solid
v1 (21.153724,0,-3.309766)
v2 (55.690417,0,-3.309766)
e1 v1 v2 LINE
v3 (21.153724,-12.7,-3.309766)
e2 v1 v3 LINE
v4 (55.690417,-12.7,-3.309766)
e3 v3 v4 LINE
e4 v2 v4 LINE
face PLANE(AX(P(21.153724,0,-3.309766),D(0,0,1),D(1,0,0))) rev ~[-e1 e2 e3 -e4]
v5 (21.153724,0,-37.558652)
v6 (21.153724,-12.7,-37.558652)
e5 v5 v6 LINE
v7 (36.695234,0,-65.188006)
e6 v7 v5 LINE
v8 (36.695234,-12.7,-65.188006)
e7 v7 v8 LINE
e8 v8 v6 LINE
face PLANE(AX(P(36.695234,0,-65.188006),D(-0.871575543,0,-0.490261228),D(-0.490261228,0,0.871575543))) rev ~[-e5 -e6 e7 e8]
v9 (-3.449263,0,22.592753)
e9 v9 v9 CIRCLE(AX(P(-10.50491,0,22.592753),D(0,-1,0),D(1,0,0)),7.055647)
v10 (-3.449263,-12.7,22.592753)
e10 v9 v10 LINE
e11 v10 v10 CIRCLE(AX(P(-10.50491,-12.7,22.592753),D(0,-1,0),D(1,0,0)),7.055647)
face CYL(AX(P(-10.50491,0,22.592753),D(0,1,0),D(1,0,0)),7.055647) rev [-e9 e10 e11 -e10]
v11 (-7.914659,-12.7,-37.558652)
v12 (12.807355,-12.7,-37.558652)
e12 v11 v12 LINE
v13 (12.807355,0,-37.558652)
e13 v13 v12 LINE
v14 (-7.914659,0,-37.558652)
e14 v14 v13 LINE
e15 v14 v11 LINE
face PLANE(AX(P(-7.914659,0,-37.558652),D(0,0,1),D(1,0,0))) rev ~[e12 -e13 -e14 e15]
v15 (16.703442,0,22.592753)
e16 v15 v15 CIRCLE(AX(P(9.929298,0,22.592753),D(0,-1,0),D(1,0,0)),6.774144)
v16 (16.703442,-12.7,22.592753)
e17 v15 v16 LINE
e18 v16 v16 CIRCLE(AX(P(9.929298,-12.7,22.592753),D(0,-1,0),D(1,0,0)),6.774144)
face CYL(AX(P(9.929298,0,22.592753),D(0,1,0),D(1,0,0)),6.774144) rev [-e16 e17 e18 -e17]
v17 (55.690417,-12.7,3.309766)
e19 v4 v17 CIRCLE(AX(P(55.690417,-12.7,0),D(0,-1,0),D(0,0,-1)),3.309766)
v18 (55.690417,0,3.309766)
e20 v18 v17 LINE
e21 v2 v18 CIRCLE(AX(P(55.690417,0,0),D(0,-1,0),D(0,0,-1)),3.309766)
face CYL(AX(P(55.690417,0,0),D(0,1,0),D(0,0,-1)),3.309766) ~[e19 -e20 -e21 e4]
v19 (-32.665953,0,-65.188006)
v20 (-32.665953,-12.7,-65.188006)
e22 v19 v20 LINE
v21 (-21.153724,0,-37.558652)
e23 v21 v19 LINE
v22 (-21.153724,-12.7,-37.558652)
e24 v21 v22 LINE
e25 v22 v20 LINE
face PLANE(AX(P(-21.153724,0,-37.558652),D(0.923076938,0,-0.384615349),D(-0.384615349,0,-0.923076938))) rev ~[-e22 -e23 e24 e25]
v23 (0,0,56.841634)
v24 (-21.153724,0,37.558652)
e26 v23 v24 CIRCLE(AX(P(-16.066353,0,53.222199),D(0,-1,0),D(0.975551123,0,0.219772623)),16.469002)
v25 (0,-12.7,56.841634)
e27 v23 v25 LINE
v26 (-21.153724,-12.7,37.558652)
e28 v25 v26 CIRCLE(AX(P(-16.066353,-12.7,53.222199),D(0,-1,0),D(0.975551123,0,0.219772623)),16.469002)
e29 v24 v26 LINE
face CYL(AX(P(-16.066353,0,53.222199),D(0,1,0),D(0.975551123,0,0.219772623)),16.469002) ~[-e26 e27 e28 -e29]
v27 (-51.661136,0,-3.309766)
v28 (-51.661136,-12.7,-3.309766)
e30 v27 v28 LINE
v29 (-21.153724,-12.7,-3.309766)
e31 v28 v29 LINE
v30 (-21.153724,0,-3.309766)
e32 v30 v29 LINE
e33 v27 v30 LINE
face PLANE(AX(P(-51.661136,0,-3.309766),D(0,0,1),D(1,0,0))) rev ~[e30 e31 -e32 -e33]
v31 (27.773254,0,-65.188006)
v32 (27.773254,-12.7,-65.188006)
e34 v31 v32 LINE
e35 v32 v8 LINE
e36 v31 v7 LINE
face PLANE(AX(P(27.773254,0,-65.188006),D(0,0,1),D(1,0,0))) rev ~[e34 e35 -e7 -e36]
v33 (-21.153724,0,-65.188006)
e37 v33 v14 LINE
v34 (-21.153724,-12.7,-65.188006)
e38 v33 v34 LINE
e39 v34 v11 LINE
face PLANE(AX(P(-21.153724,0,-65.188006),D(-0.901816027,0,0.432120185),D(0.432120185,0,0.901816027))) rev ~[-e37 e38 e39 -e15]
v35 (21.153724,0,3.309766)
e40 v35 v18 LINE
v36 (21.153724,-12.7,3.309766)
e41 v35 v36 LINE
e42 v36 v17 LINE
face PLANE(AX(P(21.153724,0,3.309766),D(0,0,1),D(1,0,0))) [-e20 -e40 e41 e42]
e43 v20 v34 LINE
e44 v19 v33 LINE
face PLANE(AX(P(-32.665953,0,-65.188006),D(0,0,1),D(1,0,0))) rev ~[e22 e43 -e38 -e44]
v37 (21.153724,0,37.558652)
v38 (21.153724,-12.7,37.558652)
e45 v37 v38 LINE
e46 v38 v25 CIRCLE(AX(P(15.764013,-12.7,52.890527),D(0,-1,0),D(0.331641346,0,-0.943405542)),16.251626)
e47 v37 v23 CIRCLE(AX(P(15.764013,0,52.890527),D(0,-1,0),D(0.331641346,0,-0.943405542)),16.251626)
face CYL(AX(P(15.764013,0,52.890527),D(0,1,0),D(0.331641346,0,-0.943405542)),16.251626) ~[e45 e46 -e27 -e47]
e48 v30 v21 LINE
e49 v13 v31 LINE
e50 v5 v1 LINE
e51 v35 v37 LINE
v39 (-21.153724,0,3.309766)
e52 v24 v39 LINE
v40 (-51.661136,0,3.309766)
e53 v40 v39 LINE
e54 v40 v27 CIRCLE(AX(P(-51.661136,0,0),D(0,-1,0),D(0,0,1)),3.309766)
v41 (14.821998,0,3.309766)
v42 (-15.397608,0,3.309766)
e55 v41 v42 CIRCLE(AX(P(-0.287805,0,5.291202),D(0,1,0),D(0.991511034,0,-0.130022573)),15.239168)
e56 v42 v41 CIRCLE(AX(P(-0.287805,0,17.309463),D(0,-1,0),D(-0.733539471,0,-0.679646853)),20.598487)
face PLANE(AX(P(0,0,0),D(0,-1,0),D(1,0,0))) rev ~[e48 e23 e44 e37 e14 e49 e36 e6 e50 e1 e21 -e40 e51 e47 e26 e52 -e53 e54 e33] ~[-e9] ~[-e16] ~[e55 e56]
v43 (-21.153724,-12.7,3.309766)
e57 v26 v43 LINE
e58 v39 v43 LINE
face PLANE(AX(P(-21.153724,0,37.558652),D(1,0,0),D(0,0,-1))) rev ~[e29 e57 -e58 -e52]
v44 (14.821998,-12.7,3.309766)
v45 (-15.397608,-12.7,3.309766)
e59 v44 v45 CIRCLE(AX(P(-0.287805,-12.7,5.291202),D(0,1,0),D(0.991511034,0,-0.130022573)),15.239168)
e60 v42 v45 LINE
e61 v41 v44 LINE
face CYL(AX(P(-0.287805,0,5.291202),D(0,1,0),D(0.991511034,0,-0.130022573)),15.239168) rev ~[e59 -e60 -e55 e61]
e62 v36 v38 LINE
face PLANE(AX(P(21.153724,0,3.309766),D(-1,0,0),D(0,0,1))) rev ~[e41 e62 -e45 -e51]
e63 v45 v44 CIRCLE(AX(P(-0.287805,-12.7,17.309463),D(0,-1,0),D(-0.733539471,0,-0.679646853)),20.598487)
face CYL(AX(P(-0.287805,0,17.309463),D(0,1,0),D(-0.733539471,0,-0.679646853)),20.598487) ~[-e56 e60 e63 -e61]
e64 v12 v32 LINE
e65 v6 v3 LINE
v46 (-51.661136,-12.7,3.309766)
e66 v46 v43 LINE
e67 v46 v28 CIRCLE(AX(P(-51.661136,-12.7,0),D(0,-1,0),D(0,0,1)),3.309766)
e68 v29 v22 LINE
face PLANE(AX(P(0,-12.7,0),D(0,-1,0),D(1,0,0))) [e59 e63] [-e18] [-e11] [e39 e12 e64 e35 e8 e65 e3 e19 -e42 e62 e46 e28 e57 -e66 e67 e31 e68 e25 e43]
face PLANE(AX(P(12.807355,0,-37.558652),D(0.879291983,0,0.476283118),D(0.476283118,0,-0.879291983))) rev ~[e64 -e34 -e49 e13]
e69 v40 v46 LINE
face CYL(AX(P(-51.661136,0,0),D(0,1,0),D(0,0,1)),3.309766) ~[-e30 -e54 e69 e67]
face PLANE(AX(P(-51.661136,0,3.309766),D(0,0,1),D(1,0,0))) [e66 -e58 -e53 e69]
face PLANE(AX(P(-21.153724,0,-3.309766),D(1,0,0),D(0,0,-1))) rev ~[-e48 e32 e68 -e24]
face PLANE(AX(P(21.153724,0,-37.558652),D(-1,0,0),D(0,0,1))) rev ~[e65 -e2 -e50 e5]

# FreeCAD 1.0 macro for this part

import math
import FreeCAD as App
import Part
import Sketcher
from FreeCAD import Vector
Q = App.Units.Quantity

doc = App.newDocument("Part")
body = doc.addObject("PartDesign::Body", "Body")

# Sketch on XZ plane
sketch1 = doc.addObject("Sketcher::SketchObject", "Sketch")
body.addObject(sketch1)
sketch1.AttachmentSupport = (doc.XZ_Plane, [""])
sketch1.MapMode = "FlatFace"
sketch1.addGeometry([
    Part.LineSegment(Vector(21.2, -37.6, 0), Vector(21.2, -3.3, 0)),  # 0
    Part.LineSegment(Vector(21.2, -3.3, 0), Vector(55.7, -3.3, 0)),  # 1
    Part.ArcOfCircle(Part.Circle(Vector(55.7, 0, 0), Vector(0, 0, 1), 3.3), math.radians(-90), math.radians(90)),  # 2
    Part.LineSegment(Vector(55.7, 3.3, 0), Vector(21.2, 3.3, 0)),  # 3
    Part.LineSegment(Vector(21.2, 3.3, 0), Vector(21.2, 37.6, 0)),  # 4
    Part.ArcOfCircle(Part.Circle(Vector(15.8, 52.9, 0), Vector(0, 0, 1), 16.3), math.radians(-71), math.radians(166)),  # 5
    Part.ArcOfCircle(Part.Circle(Vector(-16.1, 53.2, 0), Vector(0, 0, 1), 16.5), math.radians(13), math.radians(252)),  # 6
    Part.LineSegment(Vector(-21.2, 37.6, 0), Vector(-21.2, 3.3, 0)),  # 7
    Part.LineSegment(Vector(-21.2, 3.3, 0), Vector(-51.7, 3.3, 0)),  # 8
    Part.ArcOfCircle(Part.Circle(Vector(-51.7, 0, 0), Vector(0, 0, 1), 3.3), math.radians(90), math.radians(270)),  # 9
    Part.LineSegment(Vector(-51.7, -3.3, 0), Vector(-21.2, -3.3, 0)),  # 10
    Part.LineSegment(Vector(-21.2, -3.3, 0), Vector(-21.2, -37.6, 0)),  # 11
    Part.LineSegment(Vector(-21.2, -37.6, 0), Vector(-32.7, -65.2, 0)),  # 12
    Part.LineSegment(Vector(-32.7, -65.2, 0), Vector(-21.2, -65.2, 0)),  # 13
    Part.LineSegment(Vector(-21.2, -65.2, 0), Vector(-7.9, -37.6, 0)),  # 14
    Part.LineSegment(Vector(-7.9, -37.6, 0), Vector(12.8, -37.6, 0)),  # 15
    Part.LineSegment(Vector(12.8, -37.6, 0), Vector(27.8, -65.2, 0)),  # 16
    Part.LineSegment(Vector(27.8, -65.2, 0), Vector(36.7, -65.2, 0)),  # 17
    Part.LineSegment(Vector(36.7, -65.2, 0), Vector(21.2, -37.6, 0)),  # 18
    Part.ArcOfCircle(Part.Circle(Vector(-0.3, 17.3, 0), Vector(0, 0, 1), 20.6), math.radians(-137), math.radians(-43)),  # 19
    Part.ArcOfCircle(Part.Circle(Vector(-0.3, 5.3, 0), Vector(0, 0, 1), 15.2), math.radians(-173), math.radians(-7)),  # 20
    Part.Circle(Vector(-10.5, 22.6, 0), Vector(0, 0, 1), 7.1),  # 21
    Part.Circle(Vector(9.9, 22.6, 0), Vector(0, 0, 1), 6.8),  # 22
], False)
sketch1.addConstraint([
    Sketcher.Constraint("Coincident", 0, 2, 1, 1),
    Sketcher.Constraint("Tangent", 1, 2, 2, 1),
    Sketcher.Constraint("Tangent", 2, 2, 3, 1),
    Sketcher.Constraint("Coincident", 3, 2, 4, 1),
    Sketcher.Constraint("Coincident", 4, 2, 5, 1),
    Sketcher.Constraint("Coincident", 5, 2, 6, 1),
    Sketcher.Constraint("Coincident", 6, 2, 7, 1),
    Sketcher.Constraint("Coincident", 7, 2, 8, 1),
    Sketcher.Constraint("Tangent", 8, 2, 9, 1),
    Sketcher.Constraint("Tangent", 9, 2, 10, 1),
    Sketcher.Constraint("Coincident", 10, 2, 11, 1),
    Sketcher.Constraint("Coincident", 11, 2, 12, 1),
    Sketcher.Constraint("Coincident", 12, 2, 13, 1),
    Sketcher.Constraint("Coincident", 13, 2, 14, 1),
    Sketcher.Constraint("Coincident", 14, 2, 15, 1),
    Sketcher.Constraint("Coincident", 15, 2, 16, 1),
    Sketcher.Constraint("Coincident", 16, 2, 17, 1),
    Sketcher.Constraint("Coincident", 17, 2, 18, 1),
    Sketcher.Constraint("Coincident", 18, 2, 0, 1),
    Sketcher.Constraint("Coincident", 19, 1, 20, 1),
    Sketcher.Constraint("Coincident", 20, 2, 19, 2),
    Sketcher.Constraint("Vertical", 0),
    Sketcher.Constraint("Horizontal", 1),
    Sketcher.Constraint("Horizontal", 3),
    Sketcher.Constraint("Vertical", 4),
    Sketcher.Constraint("Vertical", 7),
    Sketcher.Constraint("Horizontal", 8),
    Sketcher.Constraint("Horizontal", 10),
    Sketcher.Constraint("Vertical", 11),
    Sketcher.Constraint("Horizontal", 13),
    Sketcher.Constraint("Horizontal", 15),
    Sketcher.Constraint("Horizontal", 17),
    Sketcher.Constraint("Equal", 2, 9),
    Sketcher.Constraint("Symmetric", 0, 2, 7, 2, -1, 1),
    Sketcher.Constraint("Symmetric", 4, 2, 11, 2, -1, 1),
    Sketcher.Constraint("Symmetric", 4, 2, 6, 2, -2),
    Sketcher.Constraint("PointOnObject", 2, 3, -1),
    Sketcher.Constraint("PointOnObject", 5, 2, -2),
    Sketcher.Constraint("Horizontal", 21, 3, 22, 3),
    Sketcher.Constraint("Horizontal", 11, 2, 14, 2),
    Sketcher.Constraint("Horizontal", 13, 2, 16, 2),
    Sketcher.Constraint("Horizontal", 15, 2, 18, 2),
    Sketcher.Constraint("Horizontal", 8, 2, 19, 1),
    Sketcher.Constraint("Horizontal", 19, 1, 20, 2),
    Sketcher.Constraint("Vertical", 11, 2, 13, 2),
    Sketcher.Constraint("Radius", 6, 16.469002),
    Sketcher.Constraint("Diameter", 21, 14.111293),
    Sketcher.Constraint("Diameter", 22, 13.548288),
    Sketcher.Constraint("Radius", 2, 3.309766),
    Sketcher.Constraint("Radius", 5, 16.251626),
    Sketcher.Constraint("Radius", 19, 20.598487),
    Sketcher.Constraint("Radius", 20, 15.239168),
    Sketcher.Constraint("Distance", 12, 29.931799),
    Sketcher.Constraint("DistanceX", 8, 2, 8, 1, 30.507412),
    Sketcher.Constraint("DistanceX", 13, 1, 13, 2, 11.512229),
    Sketcher.Constraint("DistanceX", 17, 1, 17, 2, 8.921981),
    Sketcher.Constraint("DistanceY", -1, 1, 6, 3, 53.222199),
    Sketcher.Constraint("DistanceY", -1, 1, 20, 3, 5.291202),
    Sketcher.Constraint("DistanceX", -1, 1, 22, 3, 9.929298),
    Sketcher.Constraint("DistanceY", 22, 3, 4, 2, 14.965899),
    Sketcher.Constraint("DistanceX", 15, 2, 16, 2, 14.965898),
    Sketcher.Constraint("DistanceX", 19, 1, 21, 3, 4.892698),
    Sketcher.Constraint("DistanceX", 22, 3, 20, 2, 4.892699),
    Sketcher.Constraint("Distance", 14, 30.637461),
    Sketcher.Constraint("Distance", 18, 31.700469),
    Sketcher.Constraint("DistanceX", 1, 1, 1, 2, 34.536693),
    Sketcher.Constraint("DistanceX", 15, 1, 15, 2, 20.722014),
    Sketcher.Constraint("DistanceY", 0, 1, 0, 2, 34.248886),
])
pad1 = doc.addObject("PartDesign::Pad", "Pad")
body.addObject(pad1)
pad1.Profile = sketch1
pad1.Length = Q("0.5 in")

doc.recompute()
